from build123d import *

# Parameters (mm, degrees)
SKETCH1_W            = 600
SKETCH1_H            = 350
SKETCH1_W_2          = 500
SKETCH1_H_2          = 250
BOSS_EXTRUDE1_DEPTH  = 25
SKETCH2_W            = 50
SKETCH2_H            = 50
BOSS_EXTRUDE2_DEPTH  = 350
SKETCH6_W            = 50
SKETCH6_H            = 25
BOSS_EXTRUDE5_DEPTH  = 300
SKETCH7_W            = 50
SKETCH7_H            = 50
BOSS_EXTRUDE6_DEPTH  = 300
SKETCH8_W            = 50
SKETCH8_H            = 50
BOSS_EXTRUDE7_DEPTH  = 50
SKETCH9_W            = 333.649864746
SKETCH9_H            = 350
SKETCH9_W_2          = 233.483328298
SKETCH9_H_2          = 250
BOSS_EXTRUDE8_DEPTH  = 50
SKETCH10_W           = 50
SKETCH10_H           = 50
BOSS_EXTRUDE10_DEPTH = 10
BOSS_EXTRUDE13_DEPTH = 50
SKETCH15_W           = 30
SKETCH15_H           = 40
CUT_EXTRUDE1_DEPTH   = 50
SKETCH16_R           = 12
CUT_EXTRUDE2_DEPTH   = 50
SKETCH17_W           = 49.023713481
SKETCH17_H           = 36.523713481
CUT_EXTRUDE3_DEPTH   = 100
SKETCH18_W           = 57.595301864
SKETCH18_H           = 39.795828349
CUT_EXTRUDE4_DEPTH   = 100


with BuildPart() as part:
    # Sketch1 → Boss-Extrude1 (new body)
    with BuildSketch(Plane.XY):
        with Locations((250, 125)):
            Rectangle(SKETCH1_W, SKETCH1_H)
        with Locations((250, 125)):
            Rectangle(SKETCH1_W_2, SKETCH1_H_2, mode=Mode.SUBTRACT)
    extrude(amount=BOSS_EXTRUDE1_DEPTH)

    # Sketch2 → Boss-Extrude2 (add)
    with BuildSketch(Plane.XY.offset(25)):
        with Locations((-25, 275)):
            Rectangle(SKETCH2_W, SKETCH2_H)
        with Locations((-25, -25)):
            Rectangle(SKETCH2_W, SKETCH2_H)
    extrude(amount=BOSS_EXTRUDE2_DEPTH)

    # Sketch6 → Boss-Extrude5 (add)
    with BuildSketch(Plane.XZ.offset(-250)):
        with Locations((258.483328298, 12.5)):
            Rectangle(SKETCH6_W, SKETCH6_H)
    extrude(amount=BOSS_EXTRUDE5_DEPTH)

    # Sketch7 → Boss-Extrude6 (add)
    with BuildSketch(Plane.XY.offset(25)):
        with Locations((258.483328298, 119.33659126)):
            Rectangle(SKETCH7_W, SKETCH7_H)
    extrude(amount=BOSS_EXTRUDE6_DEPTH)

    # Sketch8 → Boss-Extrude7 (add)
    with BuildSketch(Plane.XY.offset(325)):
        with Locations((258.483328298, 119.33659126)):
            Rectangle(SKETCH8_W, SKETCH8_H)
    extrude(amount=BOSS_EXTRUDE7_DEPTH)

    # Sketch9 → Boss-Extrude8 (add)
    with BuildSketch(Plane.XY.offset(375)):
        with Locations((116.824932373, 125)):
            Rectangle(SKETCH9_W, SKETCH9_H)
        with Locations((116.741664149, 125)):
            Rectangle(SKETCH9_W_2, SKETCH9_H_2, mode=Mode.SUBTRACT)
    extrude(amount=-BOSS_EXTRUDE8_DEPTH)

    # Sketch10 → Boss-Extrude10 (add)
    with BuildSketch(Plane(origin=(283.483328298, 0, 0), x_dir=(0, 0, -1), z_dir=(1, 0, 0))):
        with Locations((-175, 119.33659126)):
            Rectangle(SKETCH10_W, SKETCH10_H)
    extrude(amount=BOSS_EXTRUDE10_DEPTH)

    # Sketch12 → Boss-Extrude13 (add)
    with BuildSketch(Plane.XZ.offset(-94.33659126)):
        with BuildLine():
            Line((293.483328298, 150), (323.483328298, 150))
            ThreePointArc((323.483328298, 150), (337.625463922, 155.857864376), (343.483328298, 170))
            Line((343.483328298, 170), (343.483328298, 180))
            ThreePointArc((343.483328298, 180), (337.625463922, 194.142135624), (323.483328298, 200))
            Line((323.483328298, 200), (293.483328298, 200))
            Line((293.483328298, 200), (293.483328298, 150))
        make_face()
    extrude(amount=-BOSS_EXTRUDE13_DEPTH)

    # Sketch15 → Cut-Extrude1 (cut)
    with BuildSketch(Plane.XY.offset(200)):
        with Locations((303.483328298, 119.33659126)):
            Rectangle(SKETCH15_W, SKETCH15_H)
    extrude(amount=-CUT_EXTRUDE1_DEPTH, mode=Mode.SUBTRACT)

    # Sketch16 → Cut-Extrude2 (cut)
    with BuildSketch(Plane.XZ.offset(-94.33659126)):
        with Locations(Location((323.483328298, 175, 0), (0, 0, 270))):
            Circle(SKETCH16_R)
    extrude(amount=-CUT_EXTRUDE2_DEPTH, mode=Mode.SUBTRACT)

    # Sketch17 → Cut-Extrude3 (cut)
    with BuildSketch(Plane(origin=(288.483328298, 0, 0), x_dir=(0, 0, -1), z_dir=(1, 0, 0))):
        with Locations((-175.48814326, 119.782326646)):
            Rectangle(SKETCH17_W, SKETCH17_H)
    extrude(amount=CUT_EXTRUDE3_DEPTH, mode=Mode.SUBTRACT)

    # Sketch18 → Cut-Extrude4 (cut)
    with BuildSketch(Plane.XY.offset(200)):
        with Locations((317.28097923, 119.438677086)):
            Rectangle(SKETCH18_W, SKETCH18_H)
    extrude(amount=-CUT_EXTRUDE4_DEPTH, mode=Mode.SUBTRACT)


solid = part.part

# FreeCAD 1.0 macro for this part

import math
import FreeCAD as App
import Part
import Sketcher
from FreeCAD import Vector
Q = App.Units.Quantity

doc = App.newDocument("Part")
body = doc.addObject("PartDesign::Body", "Body")

# Sketch on XY plane
sketch1 = body.newObject("Sketcher::SketchObject", "Sketch")
sketch1.AttachmentSupport = (doc.getObject("XY_Plane"), [""])
sketch1.MapMode = "FlatFace"
sketch1.addGeometry([
    Part.LineSegment(Vector(-50, 300, 0), Vector(-50, -50, 0)),  # 0
    Part.LineSegment(Vector(-50, -50, 0), Vector(550, -50, 0)),  # 1
    Part.LineSegment(Vector(550, -50, 0), Vector(550, 300, 0)),  # 2
    Part.LineSegment(Vector(550, 300, 0), Vector(-50, 300, 0)),  # 3
    Part.LineSegment(Vector(500, 0, 0), Vector(0, 0, 0)),  # 4
    Part.LineSegment(Vector(0, 0, 0), Vector(0, 250, 0)),  # 5
    Part.LineSegment(Vector(0, 250, 0), Vector(500, 250, 0)),  # 6
    Part.LineSegment(Vector(500, 250, 0), Vector(500, 0, 0)),  # 7
], False)
sketch1.addConstraint([
    Sketcher.Constraint("Coincident", 0, 2, 1, 1),
    Sketcher.Constraint("Coincident", 1, 2, 2, 1),
    Sketcher.Constraint("Coincident", 2, 2, 3, 1),
    Sketcher.Constraint("Coincident", 3, 2, 0, 1),
    Sketcher.Constraint("Coincident", 4, 2, 5, 1),
    Sketcher.Constraint("Coincident", 5, 2, 6, 1),
    Sketcher.Constraint("Coincident", 6, 2, 7, 1),
    Sketcher.Constraint("Coincident", 7, 2, 4, 1),
    Sketcher.Constraint("Vertical", 0),
    Sketcher.Constraint("Horizontal", 1),
    Sketcher.Constraint("Vertical", 2),
    Sketcher.Constraint("Horizontal", 3),
    Sketcher.Constraint("Horizontal", 4),
    Sketcher.Constraint("Vertical", 5),
    Sketcher.Constraint("Horizontal", 6),
    Sketcher.Constraint("Vertical", 7),
    Sketcher.Constraint("Coincident", 4, 2, -1, 1),
    Sketcher.Constraint("DistanceX", 1, 1, 1, 2, Q("600 mm")),
    Sketcher.Constraint("DistanceX", 4, 2, 4, 1, Q("500 mm")),
    Sketcher.Constraint("DistanceY", 0, 2, 0, 1, Q("350 mm")),
    Sketcher.Constraint("DistanceY", 5, 1, 5, 2, Q("250 mm")),
    Sketcher.Constraint("DistanceX", 0, 2, -1, 1, Q("50 mm")),
    Sketcher.Constraint("DistanceY", 0, 2, -1, 1, Q("50 mm")),
])
pad1 = body.newObject("PartDesign::Pad", "Pad")
pad1.Profile = sketch1
pad1.Length = 25

# Sketch on XY plane
sketch2 = body.newObject("Sketcher::SketchObject", "Sketch001")
sketch2.AttachmentSupport = (doc.getObject("XY_Plane"), [""])
sketch2.MapMode = "FlatFace"
sketch2.AttachmentOffset = App.Placement(Vector(0, 0, 25), App.Rotation())
sketch2.addGeometry([
    Part.LineSegment(Vector(-50, 300, 0), Vector(-50, 250, 0)),  # 0
    Part.LineSegment(Vector(-50, 250, 0), Vector(0, 250, 0)),  # 1
    Part.LineSegment(Vector(0, 250, 0), Vector(0, 300, 0)),  # 2
    Part.LineSegment(Vector(0, 300, 0), Vector(-50, 300, 0)),  # 3
    Part.LineSegment(Vector(-50, 0, 0), Vector(-50, -50, 0)),  # 4
    Part.LineSegment(Vector(-50, -50, 0), Vector(0, -50, 0)),  # 5
    Part.LineSegment(Vector(0, -50, 0), Vector(0, 0, 0)),  # 6
    Part.LineSegment(Vector(0, 0, 0), Vector(-50, 0, 0)),  # 7
], False)
sketch2.addConstraint([
    Sketcher.Constraint("Coincident", 0, 2, 1, 1),
    Sketcher.Constraint("Coincident", 1, 2, 2, 1),
    Sketcher.Constraint("Coincident", 2, 2, 3, 1),
    Sketcher.Constraint("Coincident", 3, 2, 0, 1),
    Sketcher.Constraint("Coincident", 4, 2, 5, 1),
    Sketcher.Constraint("Coincident", 5, 2, 6, 1),
    Sketcher.Constraint("Coincident", 6, 2, 7, 1),
    Sketcher.Constraint("Coincident", 7, 2, 4, 1),
    Sketcher.Constraint("Vertical", 0),
    Sketcher.Constraint("Horizontal", 1),
    Sketcher.Constraint("Vertical", 2),
    Sketcher.Constraint("Horizontal", 3),
    Sketcher.Constraint("Vertical", 4),
    Sketcher.Constraint("Horizontal", 5),
    Sketcher.Constraint("Vertical", 6),
    Sketcher.Constraint("Horizontal", 7),
    Sketcher.Constraint("Coincident", 6, 2, -1, 1),
    Sketcher.Constraint("PointOnObject", 1, 2, -2),
    Sketcher.Constraint("Vertical", 3, 2, 4, 2),
    Sketcher.Constraint("Equal", 7, 0),
    Sketcher.Constraint("Equal", 2, 4),
    Sketcher.Constraint("DistanceX", 1, 1, 1, 2, Q("50 mm")),
    Sketcher.Constraint("DistanceY", -1, 1, 0, 2, Q("250 mm")),
])
pad2 = body.newObject("PartDesign::Pad", "Pad001")
pad2.Profile = sketch2
pad2.Length = 350

# Sketch on XZ plane
sketch3 = body.newObject("Sketcher::SketchObject", "Sketch002")
sketch3.AttachmentSupport = (doc.getObject("XZ_Plane"), [""])
sketch3.MapMode = "FlatFace"
sketch3.AttachmentOffset = App.Placement(Vector(0, 0, -250), App.Rotation())
sketch3.addGeometry([
    Part.LineSegment(Vector(233, 25, 0), Vector(233, 0, 0)),
    Part.LineSegment(Vector(233, 0, 0), Vector(283, 0, 0)),
    Part.LineSegment(Vector(283, 0, 0), Vector(283, 25, 0)),
    Part.LineSegment(Vector(283, 25, 0), Vector(233, 25, 0)),
], False)
sketch3.addConstraint([
    Sketcher.Constraint("Coincident", 0, 2, 1, 1),
    Sketcher.Constraint("Coincident", 1, 2, 2, 1),
    Sketcher.Constraint("Coincident", 2, 2, 3, 1),
    Sketcher.Constraint("Coincident", 3, 2, 0, 1),
    Sketcher.Constraint("Vertical", 0),
    Sketcher.Constraint("Horizontal", 1),
    Sketcher.Constraint("Vertical", 2),
    Sketcher.Constraint("Horizontal", 3),
    Sketcher.Constraint("PointOnObject", 0, 2, -1),
    Sketcher.Constraint("DistanceX", 1, 1, 1, 2, Q("50 mm")),
    Sketcher.Constraint("DistanceY", 0, 2, 0, 1, Q("25 mm")),
    Sketcher.Constraint("DistanceX", -1, 1, 0, 2, Q("233.483328 mm")),
])
pad3 = body.newObject("PartDesign::Pad", "Pad002")
pad3.Profile = sketch3
pad3.Length = 300

# Sketch on XY plane
sketch4 = body.newObject("Sketcher::SketchObject", "Sketch003")
sketch4.AttachmentSupport = (doc.getObject("XY_Plane"), [""])
sketch4.MapMode = "FlatFace"
sketch4.AttachmentOffset = App.Placement(Vector(0, 0, 25), App.Rotation())
sketch4.addGeometry([
    Part.LineSegment(Vector(233, 144, 0), Vector(233, 94, 0)),
    Part.LineSegment(Vector(233, 94, 0), Vector(283, 94, 0)),
    Part.LineSegment(Vector(283, 94, 0), Vector(283, 144, 0)),
    Part.LineSegment(Vector(283, 144, 0), Vector(233, 144, 0)),
], False)
sketch4.addConstraint([
    Sketcher.Constraint("Coincident", 0, 2, 1, 1),
    Sketcher.Constraint("Coincident", 1, 2, 2, 1),
    Sketcher.Constraint("Coincident", 2, 2, 3, 1),
    Sketcher.Constraint("Coincident", 3, 2, 0, 1),
    Sketcher.Constraint("Vertical", 0),
    Sketcher.Constraint("Horizontal", 1),
    Sketcher.Constraint("Vertical", 2),
    Sketcher.Constraint("Horizontal", 3),
    Sketcher.Constraint("Equal", 3, 0),
    Sketcher.Constraint("DistanceX", 1, 1, 1, 2, Q("50 mm")),
    Sketcher.Constraint("DistanceX", -1, 1, 0, 2, Q("233.483328 mm")),
    Sketcher.Constraint("DistanceY", -1, 1, 0, 2, Q("94.336591 mm")),
])
pad4 = body.newObject("PartDesign::Pad", "Pad003")
pad4.Profile = sketch4
pad4.Length = 300

# Sketch on XY plane
sketch5 = body.newObject("Sketcher::SketchObject", "Sketch004")
sketch5.AttachmentSupport = (doc.getObject("XY_Plane"), [""])
sketch5.MapMode = "FlatFace"
sketch5.AttachmentOffset = App.Placement(Vector(0, 0, 325), App.Rotation())
sketch5.addGeometry([
    Part.LineSegment(Vector(233, 144, 0), Vector(233, 94, 0)),
    Part.LineSegment(Vector(233, 94, 0), Vector(283, 94, 0)),
    Part.LineSegment(Vector(283, 94, 0), Vector(283, 144, 0)),
    Part.LineSegment(Vector(283, 144, 0), Vector(233, 144, 0)),
], False)
sketch5.addConstraint([
    Sketcher.Constraint("Coincident", 0, 2, 1, 1),
    Sketcher.Constraint("Coincident", 1, 2, 2, 1),
    Sketcher.Constraint("Coincident", 2, 2, 3, 1),
    Sketcher.Constraint("Coincident", 3, 2, 0, 1),
    Sketcher.Constraint("Vertical", 0),
    Sketcher.Constraint("Horizontal", 1),
    Sketcher.Constraint("Vertical", 2),
    Sketcher.Constraint("Horizontal", 3),
    Sketcher.Constraint("Equal", 3, 0),
    Sketcher.Constraint("DistanceX", 1, 1, 1, 2, Q("50 mm")),
    Sketcher.Constraint("DistanceX", -1, 1, 0, 2, Q("233.483328 mm")),
    Sketcher.Constraint("DistanceY", -1, 1, 0, 2, Q("94.336591 mm")),
])
pad5 = body.newObject("PartDesign::Pad", "Pad004")
pad5.Profile = sketch5
pad5.Length = 50

# Sketch on XY plane
sketch6 = body.newObject("Sketcher::SketchObject", "Sketch005")
sketch6.AttachmentSupport = (doc.getObject("XY_Plane"), [""])
sketch6.MapMode = "FlatFace"
sketch6.AttachmentOffset = App.Placement(Vector(0, 0, 375), App.Rotation())
sketch6.addGeometry([
    Part.LineSegment(Vector(-50, 300, 0), Vector(-50, -50, 0)),  # 0
    Part.LineSegment(Vector(-50, -50, 0), Vector(284, -50, 0)),  # 1
    Part.LineSegment(Vector(284, -50, 0), Vector(284, 300, 0)),  # 2
    Part.LineSegment(Vector(284, 300, 0), Vector(-50, 300, 0)),  # 3
    Part.LineSegment(Vector(233, 0, 0), Vector(0, 0, 0)),  # 4
    Part.LineSegment(Vector(0, 0, 0), Vector(0, 250, 0)),  # 5
    Part.LineSegment(Vector(0, 250, 0), Vector(233, 250, 0)),  # 6
    Part.LineSegment(Vector(233, 250, 0), Vector(233, 0, 0)),  # 7
], False)
sketch6.addConstraint([
    Sketcher.Constraint("Coincident", 0, 2, 1, 1),
    Sketcher.Constraint("Coincident", 1, 2, 2, 1),
    Sketcher.Constraint("Coincident", 2, 2, 3, 1),
    Sketcher.Constraint("Coincident", 3, 2, 0, 1),
    Sketcher.Constraint("Coincident", 4, 2, 5, 1),
    Sketcher.Constraint("Coincident", 5, 2, 6, 1),
    Sketcher.Constraint("Coincident", 6, 2, 7, 1),
    Sketcher.Constraint("Coincident", 7, 2, 4, 1),
    Sketcher.Constraint("Vertical", 0),
    Sketcher.Constraint("Horizontal", 1),
    Sketcher.Constraint("Vertical", 2),
    Sketcher.Constraint("Horizontal", 3),
    Sketcher.Constraint("Horizontal", 4),
    Sketcher.Constraint("Vertical", 5),
    Sketcher.Constraint("Horizontal", 6),
    Sketcher.Constraint("Vertical", 7),
    Sketcher.Constraint("Coincident", 4, 2, -1, 1),
    Sketcher.Constraint("DistanceY", 0, 2, 0, 1, Q("350 mm")),
    Sketcher.Constraint("DistanceY", 5, 1, 5, 2, Q("250 mm")),
    Sketcher.Constraint("DistanceX", 0, 2, -1, 1, Q("50 mm")),
    Sketcher.Constraint("DistanceY", 0, 2, -1, 1, Q("50 mm")),
    Sketcher.Constraint("DistanceX", 4, 2, 4, 1, Q("233.483328 mm")),
    Sketcher.Constraint("DistanceX", 1, 1, 1, 2, Q("333.649865 mm")),
])
pad6 = body.newObject("PartDesign::Pad", "Pad005")
pad6.Profile = sketch6
pad6.Length = 50
pad6.Reversed = True

# Sketch on YZ plane
sketch7 = body.newObject("Sketcher::SketchObject", "Sketch006")
sketch7.AttachmentSupport = (doc.getObject("YZ_Plane"), [""])
sketch7.MapMode = "FlatFace"
sketch7.AttachmentOffset = App.Placement(Vector(0, 0, 283.483328), App.Rotation())
sketch7.addGeometry([
    Part.LineSegment(Vector(144, 200, 0), Vector(94, 200, 0)),
    Part.LineSegment(Vector(94, 200, 0), Vector(94, 150, 0)),
    Part.LineSegment(Vector(94, 150, 0), Vector(144, 150, 0)),
    Part.LineSegment(Vector(144, 150, 0), Vector(144, 200, 0)),
], False)
sketch7.addConstraint([
    Sketcher.Constraint("Coincident", 0, 2, 1, 1),
    Sketcher.Constraint("Coincident", 1, 2, 2, 1),
    Sketcher.Constraint("Coincident", 2, 2, 3, 1),
    Sketcher.Constraint("Coincident", 3, 2, 0, 1),
    Sketcher.Constraint("Horizontal", 0),
    Sketcher.Constraint("Vertical", 1),
    Sketcher.Constraint("Horizontal", 2),
    Sketcher.Constraint("Vertical", 3),
    Sketcher.Constraint("Equal", 2, 1),
    Sketcher.Constraint("DistanceX", 0, 2, 0, 1, Q("50 mm")),
    Sketcher.Constraint("DistanceY", -1, 1, 0, 2, Q("200 mm")),
    Sketcher.Constraint("DistanceX", -1, 1, 0, 2, Q("94.336591 mm")),
])
pad7 = body.newObject("PartDesign::Pad", "Pad006")
pad7.Profile = sketch7
pad7.Length = 10

# Sketch on XZ plane
sketch8 = body.newObject("Sketcher::SketchObject", "Sketch007")
sketch8.AttachmentSupport = (doc.getObject("XZ_Plane"), [""])
sketch8.MapMode = "FlatFace"
sketch8.AttachmentOffset = App.Placement(Vector(0, 0, -94.336591), App.Rotation())
sketch8.addGeometry([
    Part.LineSegment(Vector(293, 150, 0), Vector(323, 150, 0)),  # 0
    Part.ArcOfCircle(Part.Circle(Vector(323, 170, 0), Vector(0, 0, 1), 20), math.radians(-90), math.radians(0)),  # 1
    Part.LineSegment(Vector(343, 170, 0), Vector(343, 180, 0)),  # 2
    Part.ArcOfCircle(Part.Circle(Vector(323, 180, 0), Vector(0, 0, 1), 20), math.radians(0), math.radians(90)),  # 3
    Part.LineSegment(Vector(323, 200, 0), Vector(293, 200, 0)),  # 4
    Part.LineSegment(Vector(293, 200, 0), Vector(293, 150, 0)),  # 5
], False)
sketch8.addConstraint([
    Sketcher.Constraint("Tangent", 0, 2, 1, 1),
    Sketcher.Constraint("Tangent", 1, 2, 2, 1),
    Sketcher.Constraint("Tangent", 2, 2, 3, 1),
    Sketcher.Constraint("Tangent", 3, 2, 4, 1),
    Sketcher.Constraint("Coincident", 4, 2, 5, 1),
    Sketcher.Constraint("Coincident", 5, 2, 0, 1),
    Sketcher.Constraint("Horizontal", 0),
    Sketcher.Constraint("Vertical", 2),
    Sketcher.Constraint("Horizontal", 4),
    Sketcher.Constraint("Vertical", 5),
    Sketcher.Constraint("Equal", 1, 3),
    Sketcher.Constraint("Radius", 1, Q("20 mm")),
    Sketcher.Constraint("DistanceX", 0, 1, 0, 2, Q("30 mm")),
    Sketcher.Constraint("DistanceY", 2, 1, 2, 2, Q("10 mm")),
    Sketcher.Constraint("DistanceY", -1, 1, 1, 3, Q("170 mm")),
    Sketcher.Constraint("DistanceX", -1, 1, 1, 3, Q("323.483328 mm")),
])
pad8 = body.newObject("PartDesign::Pad", "Pad007")
pad8.Profile = sketch8
pad8.Length = 50
pad8.Reversed = True

# Sketch on XY plane
sketch9 = body.newObject("Sketcher::SketchObject", "Sketch008")
sketch9.AttachmentSupport = (doc.getObject("XY_Plane"), [""])
sketch9.MapMode = "FlatFace"
sketch9.AttachmentOffset = App.Placement(Vector(0, 0, 200), App.Rotation())
sketch9.addGeometry([
    Part.LineSegment(Vector(288, 139, 0), Vector(288, 99, 0)),
    Part.LineSegment(Vector(288, 99, 0), Vector(318, 99, 0)),
    Part.LineSegment(Vector(318, 99, 0), Vector(318, 139, 0)),
    Part.LineSegment(Vector(318, 139, 0), Vector(288, 139, 0)),
], False)
sketch9.addConstraint([
    Sketcher.Constraint("Coincident", 0, 2, 1, 1),
    Sketcher.Constraint("Coincident", 1, 2, 2, 1),
    Sketcher.Constraint("Coincident", 2, 2, 3, 1),
    Sketcher.Constraint("Coincident", 3, 2, 0, 1),
    Sketcher.Constraint("Vertical", 0),
    Sketcher.Constraint("Horizontal", 1),
    Sketcher.Constraint("Vertical", 2),
    Sketcher.Constraint("Horizontal", 3),
    Sketcher.Constraint("DistanceX", 1, 1, 1, 2, Q("30 mm")),
    Sketcher.Constraint("DistanceY", 0, 2, 0, 1, Q("40 mm")),
    Sketcher.Constraint("DistanceX", -1, 1, 0, 2, Q("288.483328 mm")),
    Sketcher.Constraint("DistanceY", -1, 1, 0, 2, Q("99.336591 mm")),
])
pocket1 = body.newObject("PartDesign::Pocket", "Pocket")
pocket1.Profile = sketch9
pocket1.Length = 50

# Sketch on XZ plane
sketch10 = body.newObject("Sketcher::SketchObject", "Sketch009")
sketch10.AttachmentSupport = (doc.getObject("XZ_Plane"), [""])
sketch10.MapMode = "FlatFace"
sketch10.AttachmentOffset = App.Placement(Vector(0, 0, -94.336591), App.Rotation())
sketch10.addGeometry(Part.Circle(Vector(323, 175, 0), Vector(0, 0, 1), 12), False)
sketch10.addConstraint([
    Sketcher.Constraint("Diameter", 0, Q("24 mm")),
    Sketcher.Constraint("DistanceY", -1, 1, 0, 3, Q("175 mm")),
    Sketcher.Constraint("DistanceX", -1, 1, 0, 3, Q("323.483328 mm")),
])
pocket2 = body.newObject("PartDesign::Pocket", "Pocket001")
pocket2.Profile = sketch10
pocket2.Length = 50

# Sketch on YZ plane
sketch11 = body.newObject("Sketcher::SketchObject", "Sketch010")
sketch11.AttachmentSupport = (doc.getObject("YZ_Plane"), [""])
sketch11.MapMode = "FlatFace"
sketch11.AttachmentOffset = App.Placement(Vector(0, 0, 288.483328), App.Rotation())
sketch11.addGeometry([
    Part.LineSegment(Vector(138, 200, 0), Vector(102, 200, 0)),
    Part.LineSegment(Vector(102, 200, 0), Vector(102, 151, 0)),
    Part.LineSegment(Vector(102, 151, 0), Vector(138, 151, 0)),
    Part.LineSegment(Vector(138, 151, 0), Vector(138, 200, 0)),
], False)
sketch11.addConstraint([
    Sketcher.Constraint("Coincident", 0, 2, 1, 1),
    Sketcher.Constraint("Coincident", 1, 2, 2, 1),
    Sketcher.Constraint("Coincident", 2, 2, 3, 1),
    Sketcher.Constraint("Coincident", 3, 2, 0, 1),
    Sketcher.Constraint("Horizontal", 0),
    Sketcher.Constraint("Vertical", 1),
    Sketcher.Constraint("Horizontal", 2),
    Sketcher.Constraint("Vertical", 3),
    Sketcher.Constraint("DistanceY", -1, 1, 0, 2, Q("200 mm")),
    Sketcher.Constraint("DistanceX", 0, 2, 0, 1, Q("36.523713 mm")),
    Sketcher.Constraint("DistanceY", 1, 2, 1, 1, Q("49.023713 mm")),
    Sketcher.Constraint("DistanceX", -1, 1, 0, 2, Q("101.52047 mm")),
])
pocket3 = body.newObject("PartDesign::Pocket", "Pocket002")
pocket3.Profile = sketch11
pocket3.Length = 100
pocket3.Reversed = True

# Sketch on XY plane
sketch12 = body.newObject("Sketcher::SketchObject", "Sketch011")
sketch12.AttachmentSupport = (doc.getObject("XY_Plane"), [""])
sketch12.MapMode = "FlatFace"
sketch12.AttachmentOffset = App.Placement(Vector(0, 0, 200), App.Rotation())
sketch12.addGeometry([
    Part.LineSegment(Vector(288, 139, 0), Vector(288, 100, 0)),
    Part.LineSegment(Vector(288, 100, 0), Vector(346, 100, 0)),
    Part.LineSegment(Vector(346, 100, 0), Vector(346, 139, 0)),
    Part.LineSegment(Vector(346, 139, 0), Vector(288, 139, 0)),
], False)
sketch12.addConstraint([
    Sketcher.Constraint("Coincident", 0, 2, 1, 1),
    Sketcher.Constraint("Coincident", 1, 2, 2, 1),
    Sketcher.Constraint("Coincident", 2, 2, 3, 1),
    Sketcher.Constraint("Coincident", 3, 2, 0, 1),
    Sketcher.Constraint("Vertical", 0),
    Sketcher.Constraint("Horizontal", 1),
    Sketcher.Constraint("Vertical", 2),
    Sketcher.Constraint("Horizontal", 3),
    Sketcher.Constraint("DistanceX", 1, 1, 1, 2, Q("57.595302 mm")),
    Sketcher.Constraint("DistanceY", 0, 2, 0, 1, Q("39.795828 mm")),
    Sketcher.Constraint("DistanceX", -1, 1, 0, 2, Q("288.483328 mm")),
    Sketcher.Constraint("DistanceY", -1, 1, 2, 2, Q("139.336591 mm")),
])
pocket4 = body.newObject("PartDesign::Pocket", "Pocket003")
pocket4.Profile = sketch12
pocket4.Length = 100

doc.recompute()
